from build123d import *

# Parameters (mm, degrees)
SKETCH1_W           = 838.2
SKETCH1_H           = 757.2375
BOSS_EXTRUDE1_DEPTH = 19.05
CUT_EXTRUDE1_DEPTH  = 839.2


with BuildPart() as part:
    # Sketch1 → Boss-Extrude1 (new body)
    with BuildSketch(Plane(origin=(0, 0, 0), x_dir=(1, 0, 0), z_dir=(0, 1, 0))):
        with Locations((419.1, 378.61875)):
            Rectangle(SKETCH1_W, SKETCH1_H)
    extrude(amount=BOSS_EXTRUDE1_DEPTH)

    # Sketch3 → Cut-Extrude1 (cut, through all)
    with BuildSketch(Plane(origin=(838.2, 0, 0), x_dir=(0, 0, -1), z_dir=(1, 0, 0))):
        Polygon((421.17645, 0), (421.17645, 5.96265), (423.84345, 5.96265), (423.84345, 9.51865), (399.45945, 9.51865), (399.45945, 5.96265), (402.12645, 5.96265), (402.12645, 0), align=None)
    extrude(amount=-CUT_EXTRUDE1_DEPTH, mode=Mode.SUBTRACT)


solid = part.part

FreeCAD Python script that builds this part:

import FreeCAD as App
import Part
import Sketcher
from FreeCAD import Vector
Q = App.Units.Quantity


def add_polygon(sketch, points):
    """Adds a closed chain of lines whose ends are joined by coincident constraints."""
    first, n = sketch.GeometryCount, len(points)
    for a, b in zip(points, points[1:] + points[:1]):
        sketch.addGeometry(Part.LineSegment(App.Vector(*a, 0), App.Vector(*b, 0)), False)
    for i in range(n):
        sketch.addConstraint(Sketcher.Constraint("Coincident", first + i, 2, first + (i + 1) % n, 1))

doc = App.newDocument("Part")
body = doc.addObject("PartDesign::Body", "Body")

# Sketch on XZ plane
sketch1 = body.newObject("Sketcher::SketchObject", "Sketch")
sketch1.AttachmentSupport = (doc.getObject("XZ_Plane"), [""])
sketch1.MapMode = "FlatFace"
add_polygon(sketch1, [(0, -757), (0, 0), (838, 0), (838, -757)])  # lines 0-3
sketch1.addConstraint([
    Sketcher.Constraint("Vertical", 0),
    Sketcher.Constraint("Horizontal", 1),
    Sketcher.Constraint("Vertical", 2),
    Sketcher.Constraint("Horizontal", 3),
    Sketcher.Constraint("Coincident", 0, 2, -1, 1),
    Sketcher.Constraint("DistanceX", 1, 1, 1, 2, Q("33 in")),
    Sketcher.Constraint("DistanceY", 0, 1, 0, 2, Q("29.8125 in")),
])
pad1 = body.newObject("PartDesign::Pad", "Pad")
pad1.Profile = sketch1
pad1.Length = Q("0.75 in")
pad1.Reversed = True

# Sketch on YZ plane
sketch2 = body.newObject("Sketcher::SketchObject", "Sketch001")
sketch2.AttachmentSupport = (doc.getObject("YZ_Plane"), [""])
sketch2.MapMode = "FlatFace"
sketch2.AttachmentOffset = App.Placement(Vector(0, 0, 33 * 25.4), App.Rotation())
add_polygon(sketch2, [(0, -421.2), (6, -421.2), (6, -423.8), (9.5, -423.8), (9.5, -399.5), (6, -399.5), (6, -402.1), (0, -402.1)])  # lines 0-7
sketch2.addConstraint([
    Sketcher.Constraint("Horizontal", 0),
    Sketcher.Constraint("Vertical", 1),
    Sketcher.Constraint("Horizontal", 2),
    Sketcher.Constraint("Vertical", 3),
    Sketcher.Constraint("Horizontal", 4),
    Sketcher.Constraint("Vertical", 5),
    Sketcher.Constraint("Horizontal", 6),
    Sketcher.Constraint("Vertical", 7),
    Sketcher.Constraint("PointOnObject", 6, 2, -2),
    Sketcher.Constraint("Vertical", 1, 2, 4, 2),
    Sketcher.Constraint("Equal", 1, 5),
    Sketcher.Constraint("DistanceX", 2, 1, 2, 2, Q("0.14 in")),
    Sketcher.Constraint("DistanceY", 3, 1, 3, 2, Q("0.96 in")),
    Sketcher.Constraint("DistanceY", 7, 2, 7, 1, Q("0.75 in")),
    Sketcher.Constraint("DistanceX", 0, 1, 0, 2, 5.96265),
    Sketcher.Constraint("DistanceY", 0, 2, -1, 1, 421.17645),
])
pocket1 = body.newObject("PartDesign::Pocket", "Pocket")
pocket1.Profile = sketch2
pocket1.Type = "ThroughAll"

doc.recompute()
